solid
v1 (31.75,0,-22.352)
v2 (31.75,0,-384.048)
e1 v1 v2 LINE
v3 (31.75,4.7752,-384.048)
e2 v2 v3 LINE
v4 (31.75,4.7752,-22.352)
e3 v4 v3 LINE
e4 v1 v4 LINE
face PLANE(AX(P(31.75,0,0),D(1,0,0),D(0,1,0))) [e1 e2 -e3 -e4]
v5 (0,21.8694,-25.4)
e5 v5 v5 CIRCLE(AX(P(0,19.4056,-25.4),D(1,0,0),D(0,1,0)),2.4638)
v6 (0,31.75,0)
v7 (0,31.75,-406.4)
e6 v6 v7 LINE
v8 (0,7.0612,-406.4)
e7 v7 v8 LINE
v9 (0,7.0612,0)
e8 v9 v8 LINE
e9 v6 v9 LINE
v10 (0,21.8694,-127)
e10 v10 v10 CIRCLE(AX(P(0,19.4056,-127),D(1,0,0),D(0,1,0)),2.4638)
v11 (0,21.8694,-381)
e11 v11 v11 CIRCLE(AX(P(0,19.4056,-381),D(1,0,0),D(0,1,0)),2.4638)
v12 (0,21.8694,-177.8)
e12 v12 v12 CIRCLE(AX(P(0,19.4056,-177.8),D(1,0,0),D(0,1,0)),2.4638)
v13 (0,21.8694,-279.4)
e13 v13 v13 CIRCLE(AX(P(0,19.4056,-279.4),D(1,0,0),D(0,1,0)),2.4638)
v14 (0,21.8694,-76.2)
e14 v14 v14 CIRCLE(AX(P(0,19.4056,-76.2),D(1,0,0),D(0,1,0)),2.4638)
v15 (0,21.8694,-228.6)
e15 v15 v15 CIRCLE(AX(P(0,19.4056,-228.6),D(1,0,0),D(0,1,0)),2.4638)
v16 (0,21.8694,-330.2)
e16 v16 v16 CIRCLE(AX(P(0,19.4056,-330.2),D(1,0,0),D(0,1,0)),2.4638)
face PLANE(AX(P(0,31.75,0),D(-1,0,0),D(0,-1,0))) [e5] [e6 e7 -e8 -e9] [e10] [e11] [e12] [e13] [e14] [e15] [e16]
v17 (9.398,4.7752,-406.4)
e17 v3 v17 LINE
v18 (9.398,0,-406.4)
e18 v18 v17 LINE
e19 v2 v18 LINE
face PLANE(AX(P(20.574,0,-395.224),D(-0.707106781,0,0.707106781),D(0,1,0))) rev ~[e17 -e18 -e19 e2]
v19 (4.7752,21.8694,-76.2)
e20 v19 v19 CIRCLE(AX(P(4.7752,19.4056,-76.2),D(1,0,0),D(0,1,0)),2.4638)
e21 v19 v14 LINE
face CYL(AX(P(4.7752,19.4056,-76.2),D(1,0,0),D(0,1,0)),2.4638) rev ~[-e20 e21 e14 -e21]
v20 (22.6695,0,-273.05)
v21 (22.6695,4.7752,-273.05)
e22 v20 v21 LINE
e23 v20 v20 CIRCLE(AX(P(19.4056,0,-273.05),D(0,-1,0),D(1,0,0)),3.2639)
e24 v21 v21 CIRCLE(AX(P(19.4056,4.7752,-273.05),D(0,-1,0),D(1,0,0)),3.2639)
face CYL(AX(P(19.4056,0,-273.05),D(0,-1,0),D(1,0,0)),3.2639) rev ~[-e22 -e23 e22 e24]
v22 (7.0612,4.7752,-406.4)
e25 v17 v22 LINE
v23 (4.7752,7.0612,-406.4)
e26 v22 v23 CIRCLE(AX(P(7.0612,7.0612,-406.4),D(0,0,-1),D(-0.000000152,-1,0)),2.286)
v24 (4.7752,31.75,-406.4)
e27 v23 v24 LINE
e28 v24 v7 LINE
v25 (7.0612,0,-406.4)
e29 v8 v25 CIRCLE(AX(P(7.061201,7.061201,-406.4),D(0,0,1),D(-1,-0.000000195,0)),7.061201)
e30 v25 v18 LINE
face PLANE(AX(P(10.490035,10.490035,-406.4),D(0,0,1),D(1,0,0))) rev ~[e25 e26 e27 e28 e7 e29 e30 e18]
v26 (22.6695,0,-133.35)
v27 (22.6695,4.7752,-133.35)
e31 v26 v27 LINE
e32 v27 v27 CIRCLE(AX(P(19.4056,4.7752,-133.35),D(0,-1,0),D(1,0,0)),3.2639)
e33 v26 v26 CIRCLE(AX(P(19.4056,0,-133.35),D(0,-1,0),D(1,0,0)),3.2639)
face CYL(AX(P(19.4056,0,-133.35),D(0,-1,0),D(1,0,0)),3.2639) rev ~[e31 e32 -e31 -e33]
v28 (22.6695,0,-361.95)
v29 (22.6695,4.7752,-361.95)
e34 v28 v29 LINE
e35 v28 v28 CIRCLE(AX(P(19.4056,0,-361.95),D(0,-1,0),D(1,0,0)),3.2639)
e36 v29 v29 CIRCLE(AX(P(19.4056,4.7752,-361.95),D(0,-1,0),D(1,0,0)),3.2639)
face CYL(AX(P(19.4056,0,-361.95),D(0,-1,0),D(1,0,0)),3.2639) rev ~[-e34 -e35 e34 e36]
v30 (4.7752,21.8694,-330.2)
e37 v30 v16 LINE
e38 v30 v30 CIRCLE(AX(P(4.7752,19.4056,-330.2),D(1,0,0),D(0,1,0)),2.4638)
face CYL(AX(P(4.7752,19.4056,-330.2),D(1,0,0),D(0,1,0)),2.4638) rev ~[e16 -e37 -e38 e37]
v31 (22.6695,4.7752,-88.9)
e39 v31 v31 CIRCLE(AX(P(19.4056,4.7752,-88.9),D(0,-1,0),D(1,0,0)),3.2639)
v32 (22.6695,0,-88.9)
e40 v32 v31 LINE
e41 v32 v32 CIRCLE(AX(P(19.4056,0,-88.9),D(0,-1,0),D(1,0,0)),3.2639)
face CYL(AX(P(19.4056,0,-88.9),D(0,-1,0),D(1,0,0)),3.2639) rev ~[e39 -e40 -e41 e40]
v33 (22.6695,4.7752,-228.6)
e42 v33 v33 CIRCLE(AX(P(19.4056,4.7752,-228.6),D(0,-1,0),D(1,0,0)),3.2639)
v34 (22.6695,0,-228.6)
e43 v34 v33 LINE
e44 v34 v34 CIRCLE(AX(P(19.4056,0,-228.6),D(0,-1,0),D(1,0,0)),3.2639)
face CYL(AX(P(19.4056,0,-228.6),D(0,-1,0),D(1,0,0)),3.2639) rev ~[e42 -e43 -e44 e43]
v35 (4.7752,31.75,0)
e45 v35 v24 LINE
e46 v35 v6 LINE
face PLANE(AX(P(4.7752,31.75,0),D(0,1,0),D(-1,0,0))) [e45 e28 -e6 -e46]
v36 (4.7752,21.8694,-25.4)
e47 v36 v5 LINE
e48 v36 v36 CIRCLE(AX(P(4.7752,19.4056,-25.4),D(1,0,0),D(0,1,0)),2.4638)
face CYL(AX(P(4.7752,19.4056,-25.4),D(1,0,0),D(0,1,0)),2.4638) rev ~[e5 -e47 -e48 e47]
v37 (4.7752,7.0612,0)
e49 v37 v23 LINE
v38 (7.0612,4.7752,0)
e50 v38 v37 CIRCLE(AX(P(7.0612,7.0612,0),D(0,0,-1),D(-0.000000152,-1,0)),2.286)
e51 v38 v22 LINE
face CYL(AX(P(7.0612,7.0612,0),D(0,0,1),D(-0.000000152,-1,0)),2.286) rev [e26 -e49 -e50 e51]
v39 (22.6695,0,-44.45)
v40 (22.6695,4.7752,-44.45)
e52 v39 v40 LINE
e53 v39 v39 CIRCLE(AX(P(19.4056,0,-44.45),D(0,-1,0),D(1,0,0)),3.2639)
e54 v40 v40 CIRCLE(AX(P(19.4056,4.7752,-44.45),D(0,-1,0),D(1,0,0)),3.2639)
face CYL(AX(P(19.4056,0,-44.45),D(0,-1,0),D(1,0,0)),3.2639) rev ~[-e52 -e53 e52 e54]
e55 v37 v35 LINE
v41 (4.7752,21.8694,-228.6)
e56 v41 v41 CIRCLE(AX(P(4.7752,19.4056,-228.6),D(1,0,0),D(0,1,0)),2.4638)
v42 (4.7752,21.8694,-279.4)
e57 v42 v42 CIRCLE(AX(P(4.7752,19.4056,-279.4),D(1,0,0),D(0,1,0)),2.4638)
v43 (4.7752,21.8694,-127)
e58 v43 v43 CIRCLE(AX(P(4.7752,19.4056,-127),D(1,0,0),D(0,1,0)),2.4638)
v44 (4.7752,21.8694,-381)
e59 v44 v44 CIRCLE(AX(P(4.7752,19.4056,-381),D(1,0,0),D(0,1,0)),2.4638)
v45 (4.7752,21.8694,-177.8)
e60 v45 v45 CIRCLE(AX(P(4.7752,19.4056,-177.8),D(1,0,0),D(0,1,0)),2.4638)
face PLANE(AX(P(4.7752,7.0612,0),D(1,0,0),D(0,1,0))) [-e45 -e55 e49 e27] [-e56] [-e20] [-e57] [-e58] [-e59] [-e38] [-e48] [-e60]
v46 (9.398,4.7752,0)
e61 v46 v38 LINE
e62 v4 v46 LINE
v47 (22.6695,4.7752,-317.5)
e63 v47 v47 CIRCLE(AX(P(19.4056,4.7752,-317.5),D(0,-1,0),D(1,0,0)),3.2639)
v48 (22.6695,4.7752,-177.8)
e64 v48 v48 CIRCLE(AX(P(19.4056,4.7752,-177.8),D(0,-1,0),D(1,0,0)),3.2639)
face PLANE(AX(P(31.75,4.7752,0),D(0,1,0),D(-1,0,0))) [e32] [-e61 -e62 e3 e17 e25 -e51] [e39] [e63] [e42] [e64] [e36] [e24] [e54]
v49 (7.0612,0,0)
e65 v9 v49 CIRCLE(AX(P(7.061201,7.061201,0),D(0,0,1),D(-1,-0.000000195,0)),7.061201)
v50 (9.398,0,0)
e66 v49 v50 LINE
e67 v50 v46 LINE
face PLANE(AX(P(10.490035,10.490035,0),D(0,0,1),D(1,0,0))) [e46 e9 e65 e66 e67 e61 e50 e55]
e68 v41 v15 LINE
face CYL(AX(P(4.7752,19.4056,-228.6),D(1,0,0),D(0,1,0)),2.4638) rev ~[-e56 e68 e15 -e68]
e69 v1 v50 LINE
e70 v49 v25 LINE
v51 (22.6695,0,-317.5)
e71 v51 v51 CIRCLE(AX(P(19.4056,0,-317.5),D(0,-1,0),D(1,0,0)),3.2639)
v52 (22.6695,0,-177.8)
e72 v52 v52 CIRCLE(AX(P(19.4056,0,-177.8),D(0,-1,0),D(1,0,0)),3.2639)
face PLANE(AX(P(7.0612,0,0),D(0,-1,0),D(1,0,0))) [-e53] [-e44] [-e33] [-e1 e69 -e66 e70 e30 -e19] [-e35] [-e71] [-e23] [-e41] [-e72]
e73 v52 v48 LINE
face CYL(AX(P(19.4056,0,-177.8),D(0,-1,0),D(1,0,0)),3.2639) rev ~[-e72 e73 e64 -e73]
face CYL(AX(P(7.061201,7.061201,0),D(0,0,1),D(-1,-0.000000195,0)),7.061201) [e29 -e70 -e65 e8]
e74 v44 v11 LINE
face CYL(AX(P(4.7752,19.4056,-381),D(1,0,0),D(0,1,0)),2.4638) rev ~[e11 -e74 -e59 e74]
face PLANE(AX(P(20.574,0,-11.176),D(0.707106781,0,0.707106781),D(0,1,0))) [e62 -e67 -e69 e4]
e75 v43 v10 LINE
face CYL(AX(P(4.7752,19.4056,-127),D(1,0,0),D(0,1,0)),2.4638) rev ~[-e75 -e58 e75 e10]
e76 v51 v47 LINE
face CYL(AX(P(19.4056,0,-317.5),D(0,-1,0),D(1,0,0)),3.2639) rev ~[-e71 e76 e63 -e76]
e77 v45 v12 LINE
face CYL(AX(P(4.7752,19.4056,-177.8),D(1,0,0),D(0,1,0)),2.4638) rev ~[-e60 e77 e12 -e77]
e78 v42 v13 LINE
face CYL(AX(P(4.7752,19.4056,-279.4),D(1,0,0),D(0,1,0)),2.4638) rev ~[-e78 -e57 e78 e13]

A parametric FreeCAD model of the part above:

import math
import FreeCAD as App
import Part
import Sketcher
Q = App.Units.Quantity


def edges_at(feature, points):
    """Names of the edges that pass closest to the given points."""
    edges = feature.Shape.Edges
    near = lambda p: min(range(len(edges)), key=lambda i: edges[i].distToShape(Part.Vertex(*p))[0])
    return sorted({f"Edge{near(p) + 1}" for p in points})

doc = App.newDocument("Part")
body = doc.addObject("PartDesign::Body", "Body")

# Sketch on XY plane
sketch1 = body.newObject("Sketcher::SketchObject", "Sketch")
sketch1.AttachmentSupport = (doc.getObject("XY_Plane"), [""])
sketch1.MapMode = "FlatFace"
sketch1.addGeometry([
    Part.ArcOfCircle(Part.Circle(App.Vector(7.061201, 7.061201, 0), App.Vector(0, 0, 1), 7.061201), math.radians(-179.999989), math.radians(-90.000011)),  # 0
    Part.LineSegment(App.Vector(7.0612, 0, 0), App.Vector(31.75, 0, 0)),  # 1
    Part.LineSegment(App.Vector(31.75, 0, 0), App.Vector(31.75, 4.7752, 0)),  # 2
    Part.LineSegment(App.Vector(31.75, 4.7752, 0), App.Vector(7.0612, 4.7752, 0)),  # 3
    Part.ArcOfCircle(Part.Circle(App.Vector(7.0612, 7.0612, 0), App.Vector(0, 0, 1), 2.286), math.radians(-179.999991), math.radians(-90.000009)),  # 4
    Part.LineSegment(App.Vector(4.7752, 7.0612, 0), App.Vector(4.7752, 31.75, 0)),  # 5
    Part.LineSegment(App.Vector(4.7752, 31.75, 0), App.Vector(0, 31.75, 0)),  # 6
    Part.LineSegment(App.Vector(0, 31.75, 0), App.Vector(0, 7.0612, 0)),  # 7
], False)
sketch1.addConstraint([
    Sketcher.Constraint("Tangent", 0, 2, 1, 1),
    Sketcher.Constraint("Coincident", 1, 2, 2, 1),
    Sketcher.Constraint("Coincident", 2, 2, 3, 1),
    Sketcher.Constraint("Tangent", 3, 2, 4, 2),
    Sketcher.Constraint("Tangent", 4, 1, 5, 1),
    Sketcher.Constraint("Coincident", 5, 2, 6, 1),
    Sketcher.Constraint("Coincident", 6, 2, 7, 1),
    Sketcher.Constraint("Tangent", 7, 2, 0, 1),
    Sketcher.Constraint("Horizontal", 1),
    Sketcher.Constraint("Vertical", 2),
    Sketcher.Constraint("Horizontal", 3),
    Sketcher.Constraint("Vertical", 5),
    Sketcher.Constraint("Horizontal", 6),
    Sketcher.Constraint("Vertical", 7),
    Sketcher.Constraint("Coincident", 4, 3, 0, 3),
    Sketcher.Constraint("PointOnObject", 0, 2, -1),
    Sketcher.Constraint("PointOnObject", 6, 2, -2),
    Sketcher.Constraint("Equal", 3, 5),
    Sketcher.Constraint("Radius", 4, Q("0.09 in")),
    Sketcher.Constraint("Radius", 0, Q("0.2780001 in")),
    Sketcher.Constraint("DistanceX", 1, 1, 1, 2, Q("0.972 in")),
])
pad1 = body.newObject("PartDesign::Pad", "Pad")
pad1.Profile = sketch1
pad1.Length = Q("16 in")
pad1.Reversed = True
doc.recompute()

chamfer = body.newObject("PartDesign::Chamfer", "Chamfer")
chamfer.Base = (pad1, edges_at(pad1, [(31.75, 2.388, 0), (31.75, 2.388, -406.4)]))
chamfer.Size = Q("0.88 in")

# Sketch on YZ plane
sketch2 = body.newObject("Sketcher::SketchObject", "Sketch001")
sketch2.AttachmentSupport = (doc.getObject("YZ_Plane"), [""])
sketch2.MapMode = "FlatFace"
sketch2.AttachmentOffset = App.Placement(App.Vector(0, 0, 0.188 * 25.4), App.Rotation())
sketch2.addGeometry([
    Part.Circle(App.Vector(19.4056, -330.2, 0), App.Vector(0, 0, 1), 2.4638),  # 0
    Part.Circle(App.Vector(19.4056, -76.2, 0), App.Vector(0, 0, 1), 2.4638),  # 1
    Part.Circle(App.Vector(19.4056, -25.4, 0), App.Vector(0, 0, 1), 2.4638),  # 2
    Part.Circle(App.Vector(19.4056, -381, 0), App.Vector(0, 0, 1), 2.4638),  # 3
    Part.Circle(App.Vector(19.4056, -279.4, 0), App.Vector(0, 0, 1), 2.4638),  # 4
    Part.Circle(App.Vector(19.4056, -228.6, 0), App.Vector(0, 0, 1), 2.4638),  # 5
    Part.Circle(App.Vector(19.4056, -177.8, 0), App.Vector(0, 0, 1), 2.4638),  # 6
    Part.Circle(App.Vector(19.4056, -127, 0), App.Vector(0, 0, 1), 2.4638),  # 7
], False)
sketch2.addConstraint([
    Sketcher.Constraint("Equal", 0, 1),
    Sketcher.Constraint("Equal", 1, 2),
    Sketcher.Constraint("Equal", 2, 3),
    Sketcher.Constraint("Equal", 3, 4),
    Sketcher.Constraint("Equal", 4, 5),
    Sketcher.Constraint("Equal", 5, 6),
    Sketcher.Constraint("Equal", 6, 7),
    Sketcher.Constraint("Vertical", 0, 3, 1, 3),
    Sketcher.Constraint("Vertical", 1, 3, 2, 3),
    Sketcher.Constraint("Vertical", 2, 3, 3, 3),
    Sketcher.Constraint("Vertical", 3, 3, 4, 3),
    Sketcher.Constraint("Vertical", 4, 3, 5, 3),
    Sketcher.Constraint("Vertical", 5, 3, 6, 3),
    Sketcher.Constraint("Vertical", 6, 3, 7, 3),
    Sketcher.Constraint("Diameter", 0, Q("0.194 in")),
    Sketcher.Constraint("DistanceY", 0, 3, -1, 1, Q("13 in")),
    Sketcher.Constraint("DistanceY", 1, 3, -1, 1, Q("3 in")),
    Sketcher.Constraint("DistanceY", 2, 3, -1, 1, Q("1 in")),
    Sketcher.Constraint("DistanceY", 3, 3, -1, 1, Q("15 in")),
    Sketcher.Constraint("DistanceY", 4, 3, -1, 1, Q("11 in")),
    Sketcher.Constraint("DistanceY", 5, 3, -1, 1, Q("9 in")),
    Sketcher.Constraint("DistanceY", 6, 3, -1, 1, Q("7 in")),
    Sketcher.Constraint("DistanceY", 7, 3, -1, 1, Q("5 in")),
    Sketcher.Constraint("DistanceX", -1, 1, 0, 3, Q("0.764 in")),
])
pocket1 = body.newObject("PartDesign::Pocket", "Pocket")
pocket1.Profile = sketch2
pocket1.Length = Q("1 in")

# Sketch on XZ plane
sketch3 = body.newObject("Sketcher::SketchObject", "Sketch002")
sketch3.AttachmentSupport = (doc.getObject("XZ_Plane"), [""])
sketch3.MapMode = "FlatFace"
sketch3.addGeometry([
    Part.Circle(App.Vector(19.4056, -177.8, 0), App.Vector(0, 0, 1), 3.2639),  # 0
    Part.Circle(App.Vector(19.4056, -133.35, 0), App.Vector(0, 0, 1), 3.2639),  # 1
    Part.Circle(App.Vector(19.4056, -88.9, 0), App.Vector(0, 0, 1), 3.2639),  # 2
    Part.Circle(App.Vector(19.4056, -44.45, 0), App.Vector(0, 0, 1), 3.2639),  # 3
    Part.Circle(App.Vector(19.4056, -361.95, 0), App.Vector(0, 0, 1), 3.2639),  # 4
    Part.Circle(App.Vector(19.4056, -317.5, 0), App.Vector(0, 0, 1), 3.2639),  # 5
    Part.Circle(App.Vector(19.4056, -273.05, 0), App.Vector(0, 0, 1), 3.2639),  # 6
    Part.Circle(App.Vector(19.4056, -228.6, 0), App.Vector(0, 0, 1), 3.2639),  # 7
], False)
sketch3.addConstraint([
    Sketcher.Constraint("Equal", 0, 1),
    Sketcher.Constraint("Equal", 1, 2),
    Sketcher.Constraint("Equal", 2, 3),
    Sketcher.Constraint("Equal", 3, 4),
    Sketcher.Constraint("Equal", 4, 5),
    Sketcher.Constraint("Equal", 5, 6),
    Sketcher.Constraint("Equal", 6, 7),
    Sketcher.Constraint("Vertical", 0, 3, 1, 3),
    Sketcher.Constraint("Vertical", 1, 3, 2, 3),
    Sketcher.Constraint("Vertical", 2, 3, 3, 3),
    Sketcher.Constraint("Vertical", 3, 3, 4, 3),
    Sketcher.Constraint("Vertical", 4, 3, 5, 3),
    Sketcher.Constraint("Vertical", 5, 3, 6, 3),
    Sketcher.Constraint("Vertical", 6, 3, 7, 3),
    Sketcher.Constraint("Diameter", 0, Q("0.257 in")),
    Sketcher.Constraint("DistanceY", 0, 3, -1, 1, Q("7 in")),
    Sketcher.Constraint("DistanceY", 7, 3, -1, 1, Q("9 in")),
    Sketcher.Constraint("DistanceY", 4, 3, 1, 3, Q("9 in")),
    Sketcher.Constraint("DistanceY", 5, 3, 2, 3, Q("9 in")),
    Sketcher.Constraint("DistanceY", 2, 3, -1, 1, Q("3.5 in")),
    Sketcher.Constraint("DistanceY", 1, 3, 3, 3, Q("3.5 in")),
    Sketcher.Constraint("DistanceY", 4, 3, 6, 3, Q("3.5 in")),
    Sketcher.Constraint("DistanceY", 1, 3, -1, 1, Q("5.25 in")),
    Sketcher.Constraint("DistanceX", -1, 1, 0, 3, Q("0.764 in")),
])
pocket2 = body.newObject("PartDesign::Pocket", "Pocket001")
pocket2.Profile = sketch3
pocket2.Length = Q("1 in")

doc.recompute()
